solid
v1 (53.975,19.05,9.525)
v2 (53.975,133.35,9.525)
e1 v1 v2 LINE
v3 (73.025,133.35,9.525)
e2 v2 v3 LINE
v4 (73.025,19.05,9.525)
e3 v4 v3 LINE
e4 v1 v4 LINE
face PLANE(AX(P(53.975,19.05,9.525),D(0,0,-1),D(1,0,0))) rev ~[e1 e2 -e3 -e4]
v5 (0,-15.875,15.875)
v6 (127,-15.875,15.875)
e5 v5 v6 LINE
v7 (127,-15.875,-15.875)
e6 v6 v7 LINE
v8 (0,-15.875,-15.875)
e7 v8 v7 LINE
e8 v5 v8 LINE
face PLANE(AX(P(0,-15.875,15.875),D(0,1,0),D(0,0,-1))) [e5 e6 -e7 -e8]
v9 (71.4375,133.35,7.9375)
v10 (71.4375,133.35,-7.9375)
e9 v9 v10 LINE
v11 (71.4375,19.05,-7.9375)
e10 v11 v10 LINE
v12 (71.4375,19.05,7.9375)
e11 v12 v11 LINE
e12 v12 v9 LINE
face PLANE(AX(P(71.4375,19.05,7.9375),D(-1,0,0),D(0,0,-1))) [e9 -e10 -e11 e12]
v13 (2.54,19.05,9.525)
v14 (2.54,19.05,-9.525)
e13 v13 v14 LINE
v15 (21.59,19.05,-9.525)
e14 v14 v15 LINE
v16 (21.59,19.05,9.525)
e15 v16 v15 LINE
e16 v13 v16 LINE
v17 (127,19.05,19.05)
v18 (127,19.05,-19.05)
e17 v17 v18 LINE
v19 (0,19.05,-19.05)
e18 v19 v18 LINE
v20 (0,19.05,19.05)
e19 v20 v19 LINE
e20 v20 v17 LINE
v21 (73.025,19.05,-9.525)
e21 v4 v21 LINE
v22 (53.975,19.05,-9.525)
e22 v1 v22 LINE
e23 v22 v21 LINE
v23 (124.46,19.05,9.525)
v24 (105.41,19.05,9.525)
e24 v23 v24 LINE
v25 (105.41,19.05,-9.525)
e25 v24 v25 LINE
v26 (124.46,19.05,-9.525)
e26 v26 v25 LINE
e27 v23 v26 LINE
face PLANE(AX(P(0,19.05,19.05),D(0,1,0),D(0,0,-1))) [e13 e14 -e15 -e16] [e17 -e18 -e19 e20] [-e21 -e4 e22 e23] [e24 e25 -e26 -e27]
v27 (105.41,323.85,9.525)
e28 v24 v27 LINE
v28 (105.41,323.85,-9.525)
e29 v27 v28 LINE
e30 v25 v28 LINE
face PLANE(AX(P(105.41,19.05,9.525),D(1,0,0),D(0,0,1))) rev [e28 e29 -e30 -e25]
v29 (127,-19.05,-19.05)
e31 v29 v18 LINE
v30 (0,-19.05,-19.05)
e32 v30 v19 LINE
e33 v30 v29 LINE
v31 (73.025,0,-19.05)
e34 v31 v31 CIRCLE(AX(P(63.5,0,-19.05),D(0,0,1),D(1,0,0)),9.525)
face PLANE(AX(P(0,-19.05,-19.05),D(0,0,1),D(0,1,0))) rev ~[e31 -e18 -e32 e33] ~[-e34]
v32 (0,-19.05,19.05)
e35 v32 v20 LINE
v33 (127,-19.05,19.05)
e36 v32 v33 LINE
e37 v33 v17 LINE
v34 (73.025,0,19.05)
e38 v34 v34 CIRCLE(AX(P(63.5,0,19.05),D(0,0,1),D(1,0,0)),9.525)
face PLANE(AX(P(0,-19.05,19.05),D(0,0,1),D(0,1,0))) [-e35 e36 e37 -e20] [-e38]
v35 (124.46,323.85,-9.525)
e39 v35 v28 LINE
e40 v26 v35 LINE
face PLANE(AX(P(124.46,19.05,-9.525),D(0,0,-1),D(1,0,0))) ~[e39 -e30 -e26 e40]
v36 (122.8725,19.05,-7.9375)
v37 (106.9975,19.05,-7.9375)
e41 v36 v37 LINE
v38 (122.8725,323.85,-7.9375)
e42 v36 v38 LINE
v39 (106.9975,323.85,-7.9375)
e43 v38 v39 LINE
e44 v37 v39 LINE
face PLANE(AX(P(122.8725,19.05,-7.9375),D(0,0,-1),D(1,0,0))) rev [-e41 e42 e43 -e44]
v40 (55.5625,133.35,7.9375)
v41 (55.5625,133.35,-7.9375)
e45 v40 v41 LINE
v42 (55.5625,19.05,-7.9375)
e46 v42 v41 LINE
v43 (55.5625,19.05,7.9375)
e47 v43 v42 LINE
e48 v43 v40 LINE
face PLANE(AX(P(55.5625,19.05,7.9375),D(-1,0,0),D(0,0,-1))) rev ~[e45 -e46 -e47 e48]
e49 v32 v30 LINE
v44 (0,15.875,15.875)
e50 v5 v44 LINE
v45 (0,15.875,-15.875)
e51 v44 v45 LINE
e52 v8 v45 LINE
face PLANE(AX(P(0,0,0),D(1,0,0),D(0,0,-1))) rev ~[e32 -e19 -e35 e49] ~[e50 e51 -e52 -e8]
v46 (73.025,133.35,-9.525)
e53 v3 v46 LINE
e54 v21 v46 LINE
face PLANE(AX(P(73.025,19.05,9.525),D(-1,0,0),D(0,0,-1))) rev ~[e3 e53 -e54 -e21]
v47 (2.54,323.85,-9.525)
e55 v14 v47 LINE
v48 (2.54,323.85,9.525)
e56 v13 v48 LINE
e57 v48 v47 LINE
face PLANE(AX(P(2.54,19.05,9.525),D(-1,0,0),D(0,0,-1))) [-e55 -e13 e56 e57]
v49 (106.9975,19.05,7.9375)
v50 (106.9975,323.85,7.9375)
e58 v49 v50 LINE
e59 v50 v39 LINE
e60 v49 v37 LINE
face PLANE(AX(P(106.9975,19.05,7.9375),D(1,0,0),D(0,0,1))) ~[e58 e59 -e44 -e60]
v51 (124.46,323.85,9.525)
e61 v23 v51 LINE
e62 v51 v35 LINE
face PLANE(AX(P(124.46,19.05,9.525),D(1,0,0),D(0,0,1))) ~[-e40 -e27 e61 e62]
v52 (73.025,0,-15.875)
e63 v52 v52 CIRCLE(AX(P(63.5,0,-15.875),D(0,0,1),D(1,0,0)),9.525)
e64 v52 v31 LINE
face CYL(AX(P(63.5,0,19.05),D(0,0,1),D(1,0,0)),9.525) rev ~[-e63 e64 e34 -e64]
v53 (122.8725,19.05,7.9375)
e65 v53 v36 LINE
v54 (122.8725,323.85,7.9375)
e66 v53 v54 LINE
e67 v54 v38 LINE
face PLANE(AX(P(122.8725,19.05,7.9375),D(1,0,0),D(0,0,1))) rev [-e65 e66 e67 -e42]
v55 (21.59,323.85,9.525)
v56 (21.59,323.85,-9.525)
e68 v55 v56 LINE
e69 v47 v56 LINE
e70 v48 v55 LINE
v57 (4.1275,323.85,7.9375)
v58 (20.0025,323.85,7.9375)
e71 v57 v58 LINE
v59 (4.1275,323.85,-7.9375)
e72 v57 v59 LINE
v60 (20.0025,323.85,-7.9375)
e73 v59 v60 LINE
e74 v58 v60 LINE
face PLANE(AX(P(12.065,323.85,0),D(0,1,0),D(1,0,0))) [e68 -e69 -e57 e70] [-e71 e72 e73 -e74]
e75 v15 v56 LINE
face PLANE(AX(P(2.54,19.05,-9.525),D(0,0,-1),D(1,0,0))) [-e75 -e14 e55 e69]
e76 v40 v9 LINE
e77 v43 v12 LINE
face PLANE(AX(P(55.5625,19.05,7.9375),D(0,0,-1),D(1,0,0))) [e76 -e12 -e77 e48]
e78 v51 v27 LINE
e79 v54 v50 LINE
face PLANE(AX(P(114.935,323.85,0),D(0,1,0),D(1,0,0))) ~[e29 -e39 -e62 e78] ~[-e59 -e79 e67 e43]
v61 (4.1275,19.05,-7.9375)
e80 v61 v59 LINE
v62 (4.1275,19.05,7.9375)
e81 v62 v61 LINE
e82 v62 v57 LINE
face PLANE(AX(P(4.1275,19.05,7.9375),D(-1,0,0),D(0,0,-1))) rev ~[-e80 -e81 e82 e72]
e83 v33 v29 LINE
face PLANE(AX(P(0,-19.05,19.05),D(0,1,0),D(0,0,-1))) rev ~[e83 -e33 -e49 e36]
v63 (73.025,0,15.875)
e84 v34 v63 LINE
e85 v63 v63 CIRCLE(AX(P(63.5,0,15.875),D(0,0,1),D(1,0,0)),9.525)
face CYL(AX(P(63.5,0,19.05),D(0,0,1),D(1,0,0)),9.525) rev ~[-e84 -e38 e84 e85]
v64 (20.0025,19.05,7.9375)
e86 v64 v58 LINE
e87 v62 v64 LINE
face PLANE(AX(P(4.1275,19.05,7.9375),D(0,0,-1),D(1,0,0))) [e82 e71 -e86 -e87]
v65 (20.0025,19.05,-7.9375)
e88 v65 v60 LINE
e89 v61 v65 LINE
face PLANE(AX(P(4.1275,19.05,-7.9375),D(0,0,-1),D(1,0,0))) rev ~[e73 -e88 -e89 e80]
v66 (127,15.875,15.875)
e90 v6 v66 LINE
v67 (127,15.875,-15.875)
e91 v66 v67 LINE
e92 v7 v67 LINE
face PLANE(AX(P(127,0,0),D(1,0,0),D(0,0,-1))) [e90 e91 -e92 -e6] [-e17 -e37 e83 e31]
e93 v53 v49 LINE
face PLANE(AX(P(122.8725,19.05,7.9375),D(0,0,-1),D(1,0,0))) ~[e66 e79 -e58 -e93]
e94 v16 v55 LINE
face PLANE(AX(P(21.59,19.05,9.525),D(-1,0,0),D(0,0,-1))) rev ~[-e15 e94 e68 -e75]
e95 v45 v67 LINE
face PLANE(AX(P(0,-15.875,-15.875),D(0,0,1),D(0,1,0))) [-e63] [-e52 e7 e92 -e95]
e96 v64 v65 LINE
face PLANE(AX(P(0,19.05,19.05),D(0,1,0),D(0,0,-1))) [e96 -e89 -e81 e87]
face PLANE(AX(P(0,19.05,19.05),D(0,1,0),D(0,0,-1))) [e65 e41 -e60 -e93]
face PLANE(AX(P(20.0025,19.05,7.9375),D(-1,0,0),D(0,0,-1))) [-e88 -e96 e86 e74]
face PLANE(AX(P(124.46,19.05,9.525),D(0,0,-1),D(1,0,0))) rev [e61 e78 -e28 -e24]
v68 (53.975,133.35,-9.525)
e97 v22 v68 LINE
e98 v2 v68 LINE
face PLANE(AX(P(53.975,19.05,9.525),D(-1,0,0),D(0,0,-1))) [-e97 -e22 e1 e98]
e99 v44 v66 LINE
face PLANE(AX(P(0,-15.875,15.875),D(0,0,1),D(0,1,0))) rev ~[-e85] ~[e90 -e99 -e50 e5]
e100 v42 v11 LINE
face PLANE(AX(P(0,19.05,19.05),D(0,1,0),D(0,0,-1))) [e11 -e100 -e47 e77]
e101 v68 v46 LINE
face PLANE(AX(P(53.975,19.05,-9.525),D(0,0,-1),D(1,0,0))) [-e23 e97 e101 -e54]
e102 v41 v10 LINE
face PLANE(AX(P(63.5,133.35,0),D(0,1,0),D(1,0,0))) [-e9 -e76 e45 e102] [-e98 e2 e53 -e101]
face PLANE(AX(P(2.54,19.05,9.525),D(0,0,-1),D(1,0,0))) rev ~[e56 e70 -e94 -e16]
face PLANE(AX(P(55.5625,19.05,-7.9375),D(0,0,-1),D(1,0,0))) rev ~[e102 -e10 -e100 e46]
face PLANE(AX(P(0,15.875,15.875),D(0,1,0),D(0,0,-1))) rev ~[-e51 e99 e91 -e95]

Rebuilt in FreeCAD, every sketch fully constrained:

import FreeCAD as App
import Part
import Sketcher
from FreeCAD import Vector
Q = App.Units.Quantity

doc = App.newDocument("Part")
params = doc.addObject("Spreadsheet::Sheet", "Params")
for row, (alias, value) in enumerate([
    ("sketch1_width", "1.5 in"),
    ("sketch1_width2", "1.25 in"),
    ("pad1_length", "5 in"),
    ("sketch2_width", "0.75 in"),
    ("sketch2_width2", "0.625 in"),
    ("pad2_length", "4.5 in"),
    ("sketch3_width", "0.75 in"),
    ("sketch3_width2", "0.625 in"),
    ("pad3_length", "12 in"),
    ("sketch4_diameter", "0.75 in"),
], start=1):
    params.set(f"A{row}", alias)
    params.set(f"B{row}", "=" + value)
    params.setAlias(f"B{row}", alias)

body = doc.addObject("PartDesign::Body", "Body")

sketch1 = body.newObject("Sketcher::SketchObject", "Sketch")
sketch1.AttachmentSupport = (doc.getObject("YZ_Plane"), [""])
sketch1.MapMode = "FlatFace"
sketch1.addGeometry([
    Part.LineSegment(Vector(19, 19, 0), Vector(-19, 19, 0)),
    Part.LineSegment(Vector(-19, 19, 0), Vector(-19, -19, 0)),
    Part.LineSegment(Vector(-19, -19, 0), Vector(19, -19, 0)),
    Part.LineSegment(Vector(19, -19, 0), Vector(19, 19, 0)),
    Part.LineSegment(Vector(-16, -16, 0), Vector(-16, 16, 0)),
    Part.LineSegment(Vector(-16, 16, 0), Vector(16, 16, 0)),
    Part.LineSegment(Vector(16, 16, 0), Vector(16, -16, 0)),
    Part.LineSegment(Vector(16, -16, 0), Vector(-16, -16, 0)),
], False)
sketch1.addConstraint([
    Sketcher.Constraint("Coincident", 0, 2, 1, 1),
    Sketcher.Constraint("Coincident", 1, 2, 2, 1),
    Sketcher.Constraint("Coincident", 2, 2, 3, 1),
    Sketcher.Constraint("Coincident", 3, 2, 0, 1),
    Sketcher.Constraint("Coincident", 4, 2, 5, 1),
    Sketcher.Constraint("Coincident", 5, 2, 6, 1),
    Sketcher.Constraint("Coincident", 6, 2, 7, 1),
    Sketcher.Constraint("Coincident", 7, 2, 4, 1),
    Sketcher.Constraint("Horizontal", 0),
    Sketcher.Constraint("Vertical", 1),
    Sketcher.Constraint("Horizontal", 2),
    Sketcher.Constraint("Vertical", 3),
    Sketcher.Constraint("Vertical", 4),
    Sketcher.Constraint("Horizontal", 5),
    Sketcher.Constraint("Vertical", 6),
    Sketcher.Constraint("Horizontal", 7),
    Sketcher.Constraint("Symmetric", 0, 2, 2, 2, -1, 1),
    Sketcher.Constraint("Symmetric", 4, 2, 6, 2, -1, 1),
    Sketcher.Constraint("Equal", 2, 1),
    Sketcher.Constraint("Equal", 7, 4),
    Sketcher.Constraint("DistanceX", 0, 2, 0, 1, Q("1.5 in")),
    Sketcher.Constraint("DistanceX", 5, 1, 5, 2, Q("1.25 in")),
])
sketch1.setExpression("Constraints[20]", "Params.sketch1_width")
sketch1.setExpression("Constraints[21]", "Params.sketch1_width2")
pad1 = body.newObject("PartDesign::Pad", "Pad")
pad1.Profile = sketch1
pad1.setExpression("Length", "Params.pad1_length")

sketch2 = body.newObject("Sketcher::SketchObject", "Sketch001")
sketch2.AttachmentSupport = (doc.getObject("XZ_Plane"), [""])
sketch2.MapMode = "FlatFace"
sketch2.AttachmentOffset = App.Placement(Vector(0, 0, -0.75 * 25.4), App.Rotation())
sketch2.addGeometry([
    Part.LineSegment(Vector(54, -10, 0), Vector(54, 10, 0)),
    Part.LineSegment(Vector(54, 10, 0), Vector(73, 10, 0)),
    Part.LineSegment(Vector(73, 10, 0), Vector(73, -10, 0)),
    Part.LineSegment(Vector(73, -10, 0), Vector(54, -10, 0)),
    Part.LineSegment(Vector(71, 8, 0), Vector(56, 8, 0)),
    Part.LineSegment(Vector(56, 8, 0), Vector(56, -8, 0)),
    Part.LineSegment(Vector(56, -8, 0), Vector(71, -8, 0)),
    Part.LineSegment(Vector(71, -8, 0), Vector(71, 8, 0)),
], False)
sketch2.addConstraint([
    Sketcher.Constraint("Coincident", 0, 2, 1, 1),
    Sketcher.Constraint("Coincident", 1, 2, 2, 1),
    Sketcher.Constraint("Coincident", 2, 2, 3, 1),
    Sketcher.Constraint("Coincident", 3, 2, 0, 1),
    Sketcher.Constraint("Coincident", 4, 2, 5, 1),
    Sketcher.Constraint("Coincident", 5, 2, 6, 1),
    Sketcher.Constraint("Coincident", 6, 2, 7, 1),
    Sketcher.Constraint("Coincident", 7, 2, 4, 1),
    Sketcher.Constraint("Vertical", 0),
    Sketcher.Constraint("Horizontal", 1),
    Sketcher.Constraint("Vertical", 2),
    Sketcher.Constraint("Horizontal", 3),
    Sketcher.Constraint("Horizontal", 4),
    Sketcher.Constraint("Vertical", 5),
    Sketcher.Constraint("Horizontal", 6),
    Sketcher.Constraint("Vertical", 7),
    Sketcher.Constraint("Equal", 3, 0),
    Sketcher.Constraint("Equal", 6, 5),
    Sketcher.Constraint("DistanceX", 1, 1, 1, 2, Q("0.75 in")),
    Sketcher.Constraint("DistanceX", 4, 2, 4, 1, Q("0.625 in")),
    Sketcher.Constraint("DistanceX", -1, 1, 0, 2, Q("2.125 in")),
    Sketcher.Constraint("DistanceY", -1, 1, 0, 2, Q("0.375 in")),
    Sketcher.Constraint("DistanceX", -1, 1, 4, 2, Q("2.1875 in")),
    Sketcher.Constraint("DistanceY", -1, 1, 4, 2, Q("0.3125 in")),
])
sketch2.setExpression("Constraints[18]", "Params.sketch2_width")
sketch2.setExpression("Constraints[19]", "Params.sketch2_width2")
pad2 = body.newObject("PartDesign::Pad", "Pad001")
pad2.Profile = sketch2
pad2.setExpression("Length", "Params.pad2_length")
pad2.Reversed = True

sketch3 = body.newObject("Sketcher::SketchObject", "Sketch002")
sketch3.AttachmentSupport = (doc.getObject("XZ_Plane"), [""])
sketch3.MapMode = "FlatFace"
sketch3.AttachmentOffset = App.Placement(Vector(0, 0, -0.75 * 25.4), App.Rotation())
sketch3.addGeometry([
    Part.LineSegment(Vector(3, -10, 0), Vector(3, 10, 0)),
    Part.LineSegment(Vector(3, 10, 0), Vector(22, 10, 0)),
    Part.LineSegment(Vector(22, 10, 0), Vector(22, -10, 0)),
    Part.LineSegment(Vector(22, -10, 0), Vector(3, -10, 0)),
    Part.LineSegment(Vector(20, 8, 0), Vector(4, 8, 0)),
    Part.LineSegment(Vector(4, 8, 0), Vector(4, -8, 0)),
    Part.LineSegment(Vector(4, -8, 0), Vector(20, -8, 0)),
    Part.LineSegment(Vector(20, -8, 0), Vector(20, 8, 0)),
], False)
sketch3.addConstraint([
    Sketcher.Constraint("Coincident", 0, 2, 1, 1),
    Sketcher.Constraint("Coincident", 1, 2, 2, 1),
    Sketcher.Constraint("Coincident", 2, 2, 3, 1),
    Sketcher.Constraint("Coincident", 3, 2, 0, 1),
    Sketcher.Constraint("Coincident", 4, 2, 5, 1),
    Sketcher.Constraint("Coincident", 5, 2, 6, 1),
    Sketcher.Constraint("Coincident", 6, 2, 7, 1),
    Sketcher.Constraint("Coincident", 7, 2, 4, 1),
    Sketcher.Constraint("Vertical", 0),
    Sketcher.Constraint("Horizontal", 1),
    Sketcher.Constraint("Vertical", 2),
    Sketcher.Constraint("Horizontal", 3),
    Sketcher.Constraint("Horizontal", 4),
    Sketcher.Constraint("Vertical", 5),
    Sketcher.Constraint("Horizontal", 6),
    Sketcher.Constraint("Vertical", 7),
    Sketcher.Constraint("Equal", 3, 0),
    Sketcher.Constraint("Equal", 6, 5),
    Sketcher.Constraint("DistanceX", 1, 1, 1, 2, Q("0.75 in")),
    Sketcher.Constraint("DistanceX", -1, 1, 0, 2, Q("0.1 in")),
    Sketcher.Constraint("DistanceX", 4, 2, 4, 1, Q("0.625 in")),
    Sketcher.Constraint("DistanceY", -1, 1, 0, 2, Q("0.375 in")),
    Sketcher.Constraint("DistanceY", -1, 1, 4, 2, Q("0.3125 in")),
    Sketcher.Constraint("DistanceX", 0, 2, 4, 2, Q("0.0625 in")),
])
sketch3.setExpression("Constraints[18]", "Params.sketch3_width")
sketch3.setExpression("Constraints[20]", "Params.sketch3_width2")
pad3 = body.newObject("PartDesign::Pad", "Pad002")
pad3.Profile = sketch3
pad3.setExpression("Length", "Params.pad3_length")
pad3.Reversed = True
doc.recompute()

datumplane = body.newObject("PartDesign::Plane", "DatumPlane")
datumplane.AttachmentSupport = (doc.getObject("YZ_Plane"), [""])
datumplane.MapMode = "FlatFace"
datumplane.AttachmentOffset = App.Placement(Vector(0, 0, 2.5 * 25.4), App.Rotation())
mirrored = body.newObject("PartDesign::Mirrored", "Mirrored")
mirrored.Originals = [pad3]
mirrored.MirrorPlane = (datumplane, [""])
body.Tip = mirrored

sketch4 = body.newObject("Sketcher::SketchObject", "Sketch003")
sketch4.AttachmentSupport = (doc.getObject("XY_Plane"), [""])
sketch4.MapMode = "FlatFace"
sketch4.AttachmentOffset = App.Placement(Vector(0, 0, 0.75 * 25.4), App.Rotation())
sketch4.addGeometry(Part.Circle(Vector(64, 0, 0), Vector(0, 0, 1), 10), False)
sketch4.addConstraint([
    Sketcher.Constraint("PointOnObject", 0, 3, -1),
    Sketcher.Constraint("Diameter", 0, Q("0.75 in")),
    Sketcher.Constraint("DistanceX", -1, 1, 0, 3, Q("2.5 in")),
])
sketch4.setExpression("Constraints[1]", "Params.sketch4_diameter")
pocket1 = body.newObject("PartDesign::Pocket", "Pocket")
pocket1.Profile = sketch4
pocket1.Type = "ThroughAll"

doc.recompute()
